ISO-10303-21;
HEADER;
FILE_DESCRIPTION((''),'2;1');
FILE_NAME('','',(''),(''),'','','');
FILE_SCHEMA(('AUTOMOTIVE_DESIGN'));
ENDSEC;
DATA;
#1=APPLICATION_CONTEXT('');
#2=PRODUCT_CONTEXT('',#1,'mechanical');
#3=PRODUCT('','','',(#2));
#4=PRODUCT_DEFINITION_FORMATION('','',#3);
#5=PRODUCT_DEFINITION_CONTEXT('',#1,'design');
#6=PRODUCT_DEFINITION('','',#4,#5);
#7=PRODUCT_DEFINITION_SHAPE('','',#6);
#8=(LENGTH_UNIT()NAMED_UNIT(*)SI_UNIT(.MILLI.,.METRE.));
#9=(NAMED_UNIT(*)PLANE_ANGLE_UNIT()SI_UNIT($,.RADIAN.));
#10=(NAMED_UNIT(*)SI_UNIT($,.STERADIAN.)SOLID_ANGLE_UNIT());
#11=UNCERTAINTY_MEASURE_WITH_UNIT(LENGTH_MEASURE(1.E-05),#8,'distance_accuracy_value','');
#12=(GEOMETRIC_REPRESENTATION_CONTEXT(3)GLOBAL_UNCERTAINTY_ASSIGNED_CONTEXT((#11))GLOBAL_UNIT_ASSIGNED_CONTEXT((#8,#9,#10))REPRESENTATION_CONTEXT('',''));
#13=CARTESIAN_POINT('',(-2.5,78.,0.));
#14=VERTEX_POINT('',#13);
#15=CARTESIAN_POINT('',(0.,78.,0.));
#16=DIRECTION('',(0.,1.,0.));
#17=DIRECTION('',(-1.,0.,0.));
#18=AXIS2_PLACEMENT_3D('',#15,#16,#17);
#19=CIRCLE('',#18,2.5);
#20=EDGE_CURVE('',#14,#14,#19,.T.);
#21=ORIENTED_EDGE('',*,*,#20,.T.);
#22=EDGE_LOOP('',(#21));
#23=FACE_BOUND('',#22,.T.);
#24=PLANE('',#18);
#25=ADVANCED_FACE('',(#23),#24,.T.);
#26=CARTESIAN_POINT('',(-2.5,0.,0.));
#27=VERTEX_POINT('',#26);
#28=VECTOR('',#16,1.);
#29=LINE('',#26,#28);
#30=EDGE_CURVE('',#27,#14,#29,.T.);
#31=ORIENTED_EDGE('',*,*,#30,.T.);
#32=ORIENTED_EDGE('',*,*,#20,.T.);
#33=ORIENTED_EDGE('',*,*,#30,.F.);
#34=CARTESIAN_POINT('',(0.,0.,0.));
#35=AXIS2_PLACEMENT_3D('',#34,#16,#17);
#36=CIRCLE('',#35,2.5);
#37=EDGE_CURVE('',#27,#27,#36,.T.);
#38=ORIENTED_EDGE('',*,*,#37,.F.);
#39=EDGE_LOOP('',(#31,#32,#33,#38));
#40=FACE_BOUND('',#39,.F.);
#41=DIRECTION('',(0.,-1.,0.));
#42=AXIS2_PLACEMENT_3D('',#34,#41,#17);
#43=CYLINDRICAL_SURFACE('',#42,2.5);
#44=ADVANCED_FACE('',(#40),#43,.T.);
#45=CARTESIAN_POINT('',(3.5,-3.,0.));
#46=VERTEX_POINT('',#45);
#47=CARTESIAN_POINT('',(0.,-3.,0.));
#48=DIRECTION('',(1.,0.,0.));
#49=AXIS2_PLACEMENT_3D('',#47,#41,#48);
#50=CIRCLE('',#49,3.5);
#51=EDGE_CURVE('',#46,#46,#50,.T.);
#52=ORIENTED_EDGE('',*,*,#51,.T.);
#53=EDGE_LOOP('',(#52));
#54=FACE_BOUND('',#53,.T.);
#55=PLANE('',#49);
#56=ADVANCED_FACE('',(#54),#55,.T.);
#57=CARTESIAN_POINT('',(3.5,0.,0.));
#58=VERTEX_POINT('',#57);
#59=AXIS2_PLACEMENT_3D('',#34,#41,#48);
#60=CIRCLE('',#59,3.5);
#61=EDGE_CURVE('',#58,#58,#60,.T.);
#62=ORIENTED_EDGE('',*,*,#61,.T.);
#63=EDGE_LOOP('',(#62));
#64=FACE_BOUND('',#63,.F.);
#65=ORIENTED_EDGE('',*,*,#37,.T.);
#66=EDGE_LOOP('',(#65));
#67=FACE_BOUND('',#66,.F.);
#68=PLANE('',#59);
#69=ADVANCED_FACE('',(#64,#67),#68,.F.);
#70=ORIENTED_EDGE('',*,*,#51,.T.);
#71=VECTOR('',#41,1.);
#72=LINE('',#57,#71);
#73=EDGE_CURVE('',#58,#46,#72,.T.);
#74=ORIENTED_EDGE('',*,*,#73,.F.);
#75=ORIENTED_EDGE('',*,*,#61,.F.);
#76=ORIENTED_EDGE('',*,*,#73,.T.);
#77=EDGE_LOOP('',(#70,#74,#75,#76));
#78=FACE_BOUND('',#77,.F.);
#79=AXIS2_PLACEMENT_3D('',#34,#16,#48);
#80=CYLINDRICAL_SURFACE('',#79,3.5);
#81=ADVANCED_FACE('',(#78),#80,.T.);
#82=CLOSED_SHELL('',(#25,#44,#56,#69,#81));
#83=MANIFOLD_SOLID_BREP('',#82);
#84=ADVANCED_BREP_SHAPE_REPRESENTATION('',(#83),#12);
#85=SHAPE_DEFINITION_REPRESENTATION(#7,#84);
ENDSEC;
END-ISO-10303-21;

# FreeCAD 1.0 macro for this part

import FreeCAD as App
import Part
import Sketcher
Q = App.Units.Quantity

doc = App.newDocument("Part")
params = doc.addObject("Spreadsheet::Sheet", "Params")
for row, (alias, value) in enumerate([
    ("sketch1_diameter", "5 mm"),
    ("pad1_length", "78 mm"),
    ("sketch2_diameter", "7 mm"),
    ("pad2_length", "3 mm"),
], start=1):
    params.set(f"A{row}", alias)
    params.set(f"B{row}", "=" + value)
    params.setAlias(f"B{row}", alias)

body = doc.addObject("PartDesign::Body", "Body")

sketch1 = body.newObject("Sketcher::SketchObject", "Sketch")
sketch1.AttachmentSupport = (doc.getObject("XZ_Plane"), [""])
sketch1.MapMode = "FlatFace"
sketch1.addGeometry(Part.Circle(App.Vector(0, 0, 0), App.Vector(0, 0, 1), 2.5), False)
sketch1.addConstraint(Sketcher.Constraint("Coincident", 0, 3, -1, 1))
sketch1.addConstraint(Sketcher.Constraint("Diameter", 0, Q("5 mm")))
sketch1.setExpression("Constraints[1]", "Params.sketch1_diameter")
pad1 = body.newObject("PartDesign::Pad", "Pad")
pad1.Profile = sketch1
pad1.setExpression("Length", "Params.pad1_length")
pad1.Reversed = True

sketch2 = body.newObject("Sketcher::SketchObject", "Sketch001")
sketch2.AttachmentSupport = (doc.getObject("XZ_Plane"), [""])
sketch2.MapMode = "FlatFace"
sketch2.addGeometry(Part.Circle(App.Vector(0, 0, 0), App.Vector(0, 0, 1), 3.5), False)
sketch2.addConstraint(Sketcher.Constraint("Coincident", 0, 3, -1, 1))
sketch2.addConstraint(Sketcher.Constraint("Diameter", 0, Q("7 mm")))
sketch2.setExpression("Constraints[1]", "Params.sketch2_diameter")
pad2 = body.newObject("PartDesign::Pad", "Pad001")
pad2.Profile = sketch2
pad2.setExpression("Length", "Params.pad2_length")

doc.recompute()
